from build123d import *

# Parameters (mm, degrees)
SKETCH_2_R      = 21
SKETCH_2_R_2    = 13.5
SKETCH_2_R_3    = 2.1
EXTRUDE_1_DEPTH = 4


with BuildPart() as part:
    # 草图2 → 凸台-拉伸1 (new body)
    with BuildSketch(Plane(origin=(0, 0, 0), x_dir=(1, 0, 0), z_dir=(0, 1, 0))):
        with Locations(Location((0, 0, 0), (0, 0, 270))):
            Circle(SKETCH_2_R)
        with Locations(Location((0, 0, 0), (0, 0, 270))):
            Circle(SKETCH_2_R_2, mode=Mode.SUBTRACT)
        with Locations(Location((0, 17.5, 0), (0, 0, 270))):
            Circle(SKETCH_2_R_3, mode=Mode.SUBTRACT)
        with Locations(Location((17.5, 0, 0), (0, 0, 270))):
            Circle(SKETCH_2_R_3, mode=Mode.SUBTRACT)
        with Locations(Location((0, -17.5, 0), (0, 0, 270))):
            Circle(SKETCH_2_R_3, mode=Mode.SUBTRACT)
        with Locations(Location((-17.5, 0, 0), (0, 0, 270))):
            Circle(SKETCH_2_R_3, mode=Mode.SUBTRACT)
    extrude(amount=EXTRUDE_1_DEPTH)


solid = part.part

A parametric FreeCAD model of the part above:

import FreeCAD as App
import Part
import Sketcher
Q = App.Units.Quantity

doc = App.newDocument("Part")
body = doc.addObject("PartDesign::Body", "Body")

# Sketch on XZ plane
sketch1 = body.newObject("Sketcher::SketchObject", "Sketch")
sketch1.AttachmentSupport = (doc.getObject("XZ_Plane"), [""])
sketch1.MapMode = "FlatFace"
sketch1.addGeometry([
    Part.Circle(App.Vector(0, 0, 0), App.Vector(0, 0, 1), 21),  # 0
    Part.Circle(App.Vector(0, -17.5, 0), App.Vector(0, 0, 1), 2.1),  # 1
    Part.Circle(App.Vector(-17.5, 0, 0), App.Vector(0, 0, 1), 2.1),  # 2
    Part.Circle(App.Vector(17.5, 0, 0), App.Vector(0, 0, 1), 2.1),  # 3
    Part.Circle(App.Vector(0, 0, 0), App.Vector(0, 0, 1), 13.5),  # 4
    Part.Circle(App.Vector(0, 17.5, 0), App.Vector(0, 0, 1), 2.1),  # 5
], False)
sketch1.addConstraint([
    Sketcher.Constraint("Coincident", 0, 3, -1, 1),
    Sketcher.Constraint("Coincident", 4, 3, -1, 1),
    Sketcher.Constraint("Equal", 1, 2),
    Sketcher.Constraint("Equal", 2, 3),
    Sketcher.Constraint("Equal", 3, 5),
    Sketcher.Constraint("Symmetric", 2, 3, 3, 3, -1, 1),
    Sketcher.Constraint("Symmetric", 1, 3, 5, 3, -1, 1),
    Sketcher.Constraint("PointOnObject", 1, 3, -2),
    Sketcher.Constraint("PointOnObject", 2, 3, -1),
    Sketcher.Constraint("Diameter", 0, Q("42 mm")),
    Sketcher.Constraint("Diameter", 4, Q("27 mm")),
    Sketcher.Constraint("Diameter", 1, Q("4.2 mm")),
    Sketcher.Constraint("DistanceX", 2, 3, 3, 3, Q("35 mm")),
    Sketcher.Constraint("DistanceY", 1, 3, 5, 3, Q("35 mm")),
])
pad1 = body.newObject("PartDesign::Pad", "Pad")
pad1.Profile = sketch1
pad1.Length = 4
pad1.Reversed = True

doc.recompute()
